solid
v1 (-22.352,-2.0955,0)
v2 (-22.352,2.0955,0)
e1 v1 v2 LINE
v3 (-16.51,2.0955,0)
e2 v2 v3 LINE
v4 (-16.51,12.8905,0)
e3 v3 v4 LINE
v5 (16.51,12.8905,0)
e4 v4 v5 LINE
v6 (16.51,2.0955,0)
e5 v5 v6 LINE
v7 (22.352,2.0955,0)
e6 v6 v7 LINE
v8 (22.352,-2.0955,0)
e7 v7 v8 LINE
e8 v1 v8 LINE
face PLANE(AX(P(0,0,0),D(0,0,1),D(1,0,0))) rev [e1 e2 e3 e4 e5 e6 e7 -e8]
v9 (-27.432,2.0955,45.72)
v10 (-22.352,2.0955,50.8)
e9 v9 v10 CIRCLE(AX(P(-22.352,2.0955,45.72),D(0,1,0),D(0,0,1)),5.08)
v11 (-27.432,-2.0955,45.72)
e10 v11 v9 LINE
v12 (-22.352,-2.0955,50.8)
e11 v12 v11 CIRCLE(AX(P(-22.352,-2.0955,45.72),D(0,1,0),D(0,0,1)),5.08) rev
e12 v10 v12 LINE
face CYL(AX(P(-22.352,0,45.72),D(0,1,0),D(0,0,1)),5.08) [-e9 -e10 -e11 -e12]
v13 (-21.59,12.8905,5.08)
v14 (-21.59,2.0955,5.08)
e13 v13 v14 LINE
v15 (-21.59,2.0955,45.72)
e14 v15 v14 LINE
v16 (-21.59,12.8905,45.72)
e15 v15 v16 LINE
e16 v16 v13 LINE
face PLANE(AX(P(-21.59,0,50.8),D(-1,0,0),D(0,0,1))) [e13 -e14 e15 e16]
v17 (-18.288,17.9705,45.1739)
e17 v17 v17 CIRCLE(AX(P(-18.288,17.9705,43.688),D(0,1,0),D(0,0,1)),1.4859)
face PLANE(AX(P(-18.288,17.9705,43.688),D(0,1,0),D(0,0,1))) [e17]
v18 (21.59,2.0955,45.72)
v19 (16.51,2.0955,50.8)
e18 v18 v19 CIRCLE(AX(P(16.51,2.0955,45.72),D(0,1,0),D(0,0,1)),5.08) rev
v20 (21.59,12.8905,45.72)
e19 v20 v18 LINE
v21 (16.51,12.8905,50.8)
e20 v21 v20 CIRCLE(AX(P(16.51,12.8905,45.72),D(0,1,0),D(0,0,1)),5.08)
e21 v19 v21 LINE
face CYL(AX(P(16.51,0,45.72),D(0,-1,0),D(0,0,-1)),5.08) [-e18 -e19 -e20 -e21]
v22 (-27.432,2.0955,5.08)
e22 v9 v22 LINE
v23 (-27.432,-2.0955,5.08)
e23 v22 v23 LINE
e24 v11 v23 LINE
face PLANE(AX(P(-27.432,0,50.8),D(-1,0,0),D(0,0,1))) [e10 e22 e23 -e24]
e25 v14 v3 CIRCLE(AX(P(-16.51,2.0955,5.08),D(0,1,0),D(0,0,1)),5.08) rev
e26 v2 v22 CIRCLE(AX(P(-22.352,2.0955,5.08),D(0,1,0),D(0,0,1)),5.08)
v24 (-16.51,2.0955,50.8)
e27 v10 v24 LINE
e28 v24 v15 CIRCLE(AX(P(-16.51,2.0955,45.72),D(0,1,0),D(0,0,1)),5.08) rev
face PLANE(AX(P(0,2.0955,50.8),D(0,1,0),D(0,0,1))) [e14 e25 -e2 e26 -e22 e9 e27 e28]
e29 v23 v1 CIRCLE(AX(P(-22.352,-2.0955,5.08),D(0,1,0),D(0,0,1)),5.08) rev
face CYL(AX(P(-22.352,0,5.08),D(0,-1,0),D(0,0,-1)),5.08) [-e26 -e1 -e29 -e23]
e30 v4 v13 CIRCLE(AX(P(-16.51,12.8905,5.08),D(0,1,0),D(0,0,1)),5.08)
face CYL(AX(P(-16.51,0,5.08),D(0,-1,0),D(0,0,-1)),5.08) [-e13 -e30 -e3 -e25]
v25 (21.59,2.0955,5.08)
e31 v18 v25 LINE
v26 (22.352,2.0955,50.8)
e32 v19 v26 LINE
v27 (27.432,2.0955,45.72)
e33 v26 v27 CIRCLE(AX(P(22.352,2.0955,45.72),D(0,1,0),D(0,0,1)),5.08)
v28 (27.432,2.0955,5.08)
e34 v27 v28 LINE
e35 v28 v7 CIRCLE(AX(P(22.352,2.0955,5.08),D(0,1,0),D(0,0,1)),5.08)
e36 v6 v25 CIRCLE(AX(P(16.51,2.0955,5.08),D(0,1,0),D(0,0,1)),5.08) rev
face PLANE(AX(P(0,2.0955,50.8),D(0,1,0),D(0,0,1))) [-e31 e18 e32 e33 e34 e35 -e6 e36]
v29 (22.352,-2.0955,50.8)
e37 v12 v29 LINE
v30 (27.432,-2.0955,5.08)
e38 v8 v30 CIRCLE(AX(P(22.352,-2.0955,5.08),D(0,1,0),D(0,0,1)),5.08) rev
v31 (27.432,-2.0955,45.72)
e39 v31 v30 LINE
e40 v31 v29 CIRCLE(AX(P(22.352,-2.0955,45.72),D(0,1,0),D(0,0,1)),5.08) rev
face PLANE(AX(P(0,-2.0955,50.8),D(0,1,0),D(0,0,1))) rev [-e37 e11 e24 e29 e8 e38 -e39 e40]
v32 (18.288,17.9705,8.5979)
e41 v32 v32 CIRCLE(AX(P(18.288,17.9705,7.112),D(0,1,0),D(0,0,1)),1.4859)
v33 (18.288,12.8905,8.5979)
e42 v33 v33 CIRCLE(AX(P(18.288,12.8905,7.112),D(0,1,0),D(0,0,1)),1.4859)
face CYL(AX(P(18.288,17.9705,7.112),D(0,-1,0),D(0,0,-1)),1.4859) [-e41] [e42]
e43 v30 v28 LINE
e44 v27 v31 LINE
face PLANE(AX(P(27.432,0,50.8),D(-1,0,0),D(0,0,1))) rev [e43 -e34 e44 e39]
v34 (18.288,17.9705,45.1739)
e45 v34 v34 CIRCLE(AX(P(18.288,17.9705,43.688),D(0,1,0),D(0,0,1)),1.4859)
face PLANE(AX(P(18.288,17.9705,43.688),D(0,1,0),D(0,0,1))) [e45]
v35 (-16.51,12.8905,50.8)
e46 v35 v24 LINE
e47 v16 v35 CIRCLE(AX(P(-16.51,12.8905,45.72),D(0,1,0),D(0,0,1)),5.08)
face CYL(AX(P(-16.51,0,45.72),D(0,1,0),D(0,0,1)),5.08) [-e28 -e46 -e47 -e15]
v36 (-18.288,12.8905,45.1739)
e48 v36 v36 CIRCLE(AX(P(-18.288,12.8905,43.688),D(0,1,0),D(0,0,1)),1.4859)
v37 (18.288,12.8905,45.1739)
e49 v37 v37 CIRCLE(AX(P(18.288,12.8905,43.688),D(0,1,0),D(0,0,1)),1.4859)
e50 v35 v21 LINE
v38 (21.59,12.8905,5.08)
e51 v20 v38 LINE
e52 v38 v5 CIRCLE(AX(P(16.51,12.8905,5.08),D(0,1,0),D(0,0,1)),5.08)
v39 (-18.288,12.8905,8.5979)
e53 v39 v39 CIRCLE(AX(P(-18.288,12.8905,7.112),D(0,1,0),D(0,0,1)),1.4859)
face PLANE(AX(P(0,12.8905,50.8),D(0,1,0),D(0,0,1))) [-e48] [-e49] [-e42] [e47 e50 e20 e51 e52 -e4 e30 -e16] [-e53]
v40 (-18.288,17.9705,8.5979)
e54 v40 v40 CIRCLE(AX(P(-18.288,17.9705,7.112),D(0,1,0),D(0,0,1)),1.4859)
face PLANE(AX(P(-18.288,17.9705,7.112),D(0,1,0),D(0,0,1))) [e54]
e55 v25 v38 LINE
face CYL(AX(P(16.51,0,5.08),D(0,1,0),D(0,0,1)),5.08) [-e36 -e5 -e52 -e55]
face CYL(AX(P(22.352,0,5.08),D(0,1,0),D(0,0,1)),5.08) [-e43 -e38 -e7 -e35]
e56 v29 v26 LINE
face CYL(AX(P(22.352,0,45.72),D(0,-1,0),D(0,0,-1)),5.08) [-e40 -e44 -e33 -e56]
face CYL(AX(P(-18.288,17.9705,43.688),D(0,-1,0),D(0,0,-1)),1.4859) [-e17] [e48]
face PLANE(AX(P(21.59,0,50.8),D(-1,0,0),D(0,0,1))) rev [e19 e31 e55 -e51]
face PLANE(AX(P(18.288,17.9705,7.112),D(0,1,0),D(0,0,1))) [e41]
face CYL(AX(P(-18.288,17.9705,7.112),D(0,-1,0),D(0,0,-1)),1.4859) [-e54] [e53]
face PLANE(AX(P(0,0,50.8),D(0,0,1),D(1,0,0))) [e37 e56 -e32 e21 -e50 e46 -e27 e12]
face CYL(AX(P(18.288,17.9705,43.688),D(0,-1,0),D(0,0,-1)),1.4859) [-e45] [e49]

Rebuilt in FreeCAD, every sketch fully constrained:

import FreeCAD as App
import Part
import Sketcher
from FreeCAD import Vector
Q = App.Units.Quantity


def edges_at(feature, points):
    """Names of the edges that pass closest to the given points."""
    edges = feature.Shape.Edges
    near = lambda p: min(range(len(edges)), key=lambda i: edges[i].distToShape(Part.Vertex(*p))[0])
    return sorted({f"Edge{near(p) + 1}" for p in points})


def add_polygon(sketch, points):
    """Adds a closed chain of lines whose ends are joined by coincident constraints."""
    first, n = sketch.GeometryCount, len(points)
    for a, b in zip(points, points[1:] + points[:1]):
        sketch.addGeometry(Part.LineSegment(App.Vector(*a, 0), App.Vector(*b, 0)), False)
    for i in range(n):
        sketch.addConstraint(Sketcher.Constraint("Coincident", first + i, 2, first + (i + 1) % n, 1))

doc = App.newDocument("Part")
params = doc.addObject("Spreadsheet::Sheet", "Params")
for row, (alias, value) in enumerate([
    ("sketch1_width", "1.7 in"),
    ("sketch1_width2", "0.23 in"),
    ("sketch1_height", "0.425 in"),
    ("sketch1_height2", "0.165 in"),
    ("pad1_length", "2 in"),
    ("sketch2_diameter", "0.117 in"),
    ("pad2_length", "0.2 in"),
    ("fillet_radius", "0.2 in"),
    ("fillet2_radius", "0.2 in"),
], start=1):
    params.set(f"A{row}", alias)
    params.set(f"B{row}", "=" + value)
    params.setAlias(f"B{row}", alias)

body = doc.addObject("PartDesign::Body", "Body")

sketch1 = body.newObject("Sketcher::SketchObject", "Sketch")
sketch1.AttachmentSupport = (doc.getObject("XY_Plane"), [""])
sketch1.MapMode = "FlatFace"
add_polygon(sketch1, [(-21.6, 12.9), (-21.6, 2.1), (-27.4, 2.1), (-27.4, -2.1), (27.4, -2.1), (27.4, 2.1), (21.6, 2.1), (21.6, 12.9)])
sketch1.addConstraint(Sketcher.Constraint("Vertical", 0))
sketch1.addConstraint(Sketcher.Constraint("Horizontal", 1))
sketch1.addConstraint(Sketcher.Constraint("Vertical", 2))
sketch1.addConstraint(Sketcher.Constraint("Horizontal", 3))
sketch1.addConstraint(Sketcher.Constraint("Vertical", 4))
sketch1.addConstraint(Sketcher.Constraint("Horizontal", 5))
sketch1.addConstraint(Sketcher.Constraint("Vertical", 6))
sketch1.addConstraint(Sketcher.Constraint("Horizontal", 7))
sketch1.addConstraint(Sketcher.Constraint("Symmetric", 1, 2, 3, 2, -1, 1))
sketch1.addConstraint(Sketcher.Constraint("Symmetric", 0, 2, 5, 2, -2))
sketch1.addConstraint(Sketcher.Constraint("DistanceX", 7, 2, 7, 1, Q("1.7 in")))
sketch1.addConstraint(Sketcher.Constraint("DistanceX", 1, 2, 1, 1, Q("0.23 in")))
sketch1.addConstraint(Sketcher.Constraint("DistanceY", 0, 2, 0, 1, Q("0.425 in")))
sketch1.addConstraint(Sketcher.Constraint("DistanceY", 2, 2, 2, 1, Q("0.165 in")))
sketch1.setExpression("Constraints[18]", "Params.sketch1_width")
sketch1.setExpression("Constraints[19]", "Params.sketch1_width2")
sketch1.setExpression("Constraints[20]", "Params.sketch1_height")
sketch1.setExpression("Constraints[21]", "Params.sketch1_height2")
pad1 = body.newObject("PartDesign::Pad", "Pad")
pad1.Profile = sketch1
pad1.setExpression("Length", "Params.pad1_length")

sketch2 = body.newObject("Sketcher::SketchObject", "Sketch001")
sketch2.AttachmentSupport = (doc.getObject("XZ_Plane"), [""])
sketch2.MapMode = "FlatFace"
sketch2.AttachmentOffset = App.Placement(Vector(0, 0, -0.5075 * 25.4), App.Rotation())
sketch2.addGeometry(Part.Circle(Vector(-18.3, 7.1, 0), Vector(0, 0, 1), 1.5), False)
sketch2.addGeometry(Part.Circle(Vector(18.3, 7.1, 0), Vector(0, 0, 1), 1.5), False)
sketch2.addGeometry(Part.Circle(Vector(18.3, 43.7, 0), Vector(0, 0, 1), 1.5), False)
sketch2.addGeometry(Part.Circle(Vector(-18.3, 43.7, 0), Vector(0, 0, 1), 1.5), False)
sketch2.addConstraint(Sketcher.Constraint("Equal", 0, 1))
sketch2.addConstraint(Sketcher.Constraint("Equal", 1, 2))
sketch2.addConstraint(Sketcher.Constraint("Equal", 2, 3))
sketch2.addConstraint(Sketcher.Constraint("Symmetric", 0, 3, 1, 3, -2))
sketch2.addConstraint(Sketcher.Constraint("Symmetric", 2, 3, 3, 3, -2))
sketch2.addConstraint(Sketcher.Constraint("Vertical", 1, 3, 2, 3))
sketch2.addConstraint(Sketcher.Constraint("Diameter", 0, Q("0.117 in")))
sketch2.addConstraint(Sketcher.Constraint("DistanceX", 0, 3, -1, 1, Q("0.72 in")))
sketch2.addConstraint(Sketcher.Constraint("DistanceY", -1, 1, 0, 3, Q("0.28 in")))
sketch2.addConstraint(Sketcher.Constraint("DistanceY", -1, 1, 2, 3, Q("1.72 in")))
sketch2.setExpression("Constraints[6]", "Params.sketch2_diameter")
pad2 = body.newObject("PartDesign::Pad", "Pad001")
pad2.Profile = sketch2
pad2.setExpression("Length", "Params.pad2_length")
pad2.Reversed = True
doc.recompute()

fillet = body.newObject("PartDesign::Fillet", "Fillet")
fillet.Base = (pad2, edges_at(pad2, [
    (21.59, 7.493, 0),
    (-21.59, 7.493, 0),
    (21.59, 7.493, 50.8),
    (-21.59, 7.493, 50.8),
]))
fillet.setExpression("Radius", "Params.fillet_radius")
doc.recompute()

fillet2 = body.newObject("PartDesign::Fillet", "Fillet001")
fillet2.Base = (fillet, edges_at(fillet, [
    (27.432, 0, 0),
    (-27.432, 0, 0),
    (-27.432, 0, 50.8),
    (27.432, 0, 50.8),
]))
fillet2.setExpression("Radius", "Params.fillet2_radius")

doc.recompute()
